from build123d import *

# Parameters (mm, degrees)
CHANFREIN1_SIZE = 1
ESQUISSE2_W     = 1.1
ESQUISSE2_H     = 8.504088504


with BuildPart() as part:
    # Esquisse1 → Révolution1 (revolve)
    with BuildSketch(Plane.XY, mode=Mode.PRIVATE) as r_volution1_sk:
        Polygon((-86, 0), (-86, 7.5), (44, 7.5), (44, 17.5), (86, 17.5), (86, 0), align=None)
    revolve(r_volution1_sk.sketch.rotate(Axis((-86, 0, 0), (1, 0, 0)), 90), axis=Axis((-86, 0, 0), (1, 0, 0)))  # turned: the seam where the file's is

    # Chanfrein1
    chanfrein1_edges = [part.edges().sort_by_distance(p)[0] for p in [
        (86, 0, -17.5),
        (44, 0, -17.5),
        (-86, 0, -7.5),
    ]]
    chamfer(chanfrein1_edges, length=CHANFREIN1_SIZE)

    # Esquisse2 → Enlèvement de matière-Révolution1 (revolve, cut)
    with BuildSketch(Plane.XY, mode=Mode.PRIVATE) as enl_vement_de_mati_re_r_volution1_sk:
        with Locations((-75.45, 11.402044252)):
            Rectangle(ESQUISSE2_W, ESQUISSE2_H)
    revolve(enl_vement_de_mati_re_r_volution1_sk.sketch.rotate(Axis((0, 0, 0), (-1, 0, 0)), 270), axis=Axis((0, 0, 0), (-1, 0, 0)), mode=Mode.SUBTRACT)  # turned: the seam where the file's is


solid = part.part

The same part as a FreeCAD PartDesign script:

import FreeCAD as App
import Part
import Sketcher
Q = App.Units.Quantity


def edges_at(feature, points):
    """Names of the edges that pass closest to the given points."""
    edges = feature.Shape.Edges
    near = lambda p: min(range(len(edges)), key=lambda i: edges[i].distToShape(Part.Vertex(*p))[0])
    return sorted({f"Edge{near(p) + 1}" for p in points})

doc = App.newDocument("Part")
body = doc.addObject("PartDesign::Body", "Body")

sketch1 = doc.addObject("Sketcher::SketchObject", "Sketch")
body.addObject(sketch1)
sketch1.AttachmentSupport = (doc.XY_Plane, [""])
sketch1.MapMode = "FlatFace"
sketch1.addGeometry([
    Part.LineSegment(App.Vector(-86, 8, 0), App.Vector(-86, 0, 0)),
    Part.LineSegment(App.Vector(-86, 0, 0), App.Vector(86, 0, 0)),
    Part.LineSegment(App.Vector(86, 0, 0), App.Vector(86, 18, 0)),
    Part.LineSegment(App.Vector(86, 18, 0), App.Vector(44, 18, 0)),
    Part.LineSegment(App.Vector(44, 18, 0), App.Vector(44, 8, 0)),
    Part.LineSegment(App.Vector(44, 8, 0), App.Vector(-86, 8, 0)),
], False)
sketch1.addConstraint([
    Sketcher.Constraint("Coincident", 0, 2, 1, 1),
    Sketcher.Constraint("Coincident", 1, 2, 2, 1),
    Sketcher.Constraint("Coincident", 2, 2, 3, 1),
    Sketcher.Constraint("Coincident", 3, 2, 4, 1),
    Sketcher.Constraint("Coincident", 4, 2, 5, 1),
    Sketcher.Constraint("Coincident", 5, 2, 0, 1),
    Sketcher.Constraint("Vertical", 0),
    Sketcher.Constraint("Horizontal", 1),
    Sketcher.Constraint("Vertical", 2),
    Sketcher.Constraint("Horizontal", 3),
    Sketcher.Constraint("Vertical", 4),
    Sketcher.Constraint("Horizontal", 5),
    Sketcher.Constraint("Symmetric", 0, 2, 1, 2, -1, 1),
    Sketcher.Constraint("DistanceX", 1, 1, 1, 2, Q("172 mm")),
    Sketcher.Constraint("DistanceX", 3, 2, 3, 1, Q("42 mm")),
    Sketcher.Constraint("DistanceY", 4, 2, 4, 1, Q("10 mm")),
    Sketcher.Constraint("DistanceY", 0, 2, 0, 1, Q("7.5 mm")),
])
revolution = doc.addObject("PartDesign::Revolution", "Revolution")
body.addObject(revolution)
revolution.Profile = sketch1
revolution.ReferenceAxis = (sketch1, ["H_Axis"])
revolution.Angle = 360
doc.recompute()

chamfer = doc.addObject("PartDesign::Chamfer", "Chamfer")
body.addObject(chamfer)
chamfer.Base = (revolution, edges_at(revolution, [(86, 0, -17.5), (44, 0, -17.5), (-86, 0, -7.5)]))
chamfer.Size = 1

sketch2 = doc.addObject("Sketcher::SketchObject", "Sketch001")
body.addObject(sketch2)
sketch2.AttachmentSupport = (doc.XY_Plane, [""])
sketch2.MapMode = "FlatFace"
sketch2.addGeometry([
    Part.LineSegment(App.Vector(-76, 15.7, 0), App.Vector(-76, 7.2, 0)),
    Part.LineSegment(App.Vector(-76, 7.2, 0), App.Vector(-74.9, 7.2, 0)),
    Part.LineSegment(App.Vector(-74.9, 7.2, 0), App.Vector(-74.9, 15.7, 0)),
    Part.LineSegment(App.Vector(-74.9, 15.7, 0), App.Vector(-76, 15.7, 0)),
], False)
sketch2.addConstraint([
    Sketcher.Constraint("Coincident", 0, 2, 1, 1),
    Sketcher.Constraint("Coincident", 1, 2, 2, 1),
    Sketcher.Constraint("Coincident", 2, 2, 3, 1),
    Sketcher.Constraint("Coincident", 3, 2, 0, 1),
    Sketcher.Constraint("Vertical", 0),
    Sketcher.Constraint("Horizontal", 1),
    Sketcher.Constraint("Vertical", 2),
    Sketcher.Constraint("Horizontal", 3),
    Sketcher.Constraint("DistanceX", 1, 1, 1, 2, Q("1.1 mm")),
    Sketcher.Constraint("DistanceX", 0, 2, -1, 1, Q("76 mm")),
    Sketcher.Constraint("DistanceY", -1, 1, 0, 2, Q("7.15 mm")),
    Sketcher.Constraint("DistanceY", 0, 2, 0, 1, Q("8.504089 mm")),
])
groove = doc.addObject("PartDesign::Groove", "Groove")
body.addObject(groove)
groove.Profile = sketch2
groove.ReferenceAxis = (sketch2, ["H_Axis"])
groove.Angle = 360

doc.recompute()
